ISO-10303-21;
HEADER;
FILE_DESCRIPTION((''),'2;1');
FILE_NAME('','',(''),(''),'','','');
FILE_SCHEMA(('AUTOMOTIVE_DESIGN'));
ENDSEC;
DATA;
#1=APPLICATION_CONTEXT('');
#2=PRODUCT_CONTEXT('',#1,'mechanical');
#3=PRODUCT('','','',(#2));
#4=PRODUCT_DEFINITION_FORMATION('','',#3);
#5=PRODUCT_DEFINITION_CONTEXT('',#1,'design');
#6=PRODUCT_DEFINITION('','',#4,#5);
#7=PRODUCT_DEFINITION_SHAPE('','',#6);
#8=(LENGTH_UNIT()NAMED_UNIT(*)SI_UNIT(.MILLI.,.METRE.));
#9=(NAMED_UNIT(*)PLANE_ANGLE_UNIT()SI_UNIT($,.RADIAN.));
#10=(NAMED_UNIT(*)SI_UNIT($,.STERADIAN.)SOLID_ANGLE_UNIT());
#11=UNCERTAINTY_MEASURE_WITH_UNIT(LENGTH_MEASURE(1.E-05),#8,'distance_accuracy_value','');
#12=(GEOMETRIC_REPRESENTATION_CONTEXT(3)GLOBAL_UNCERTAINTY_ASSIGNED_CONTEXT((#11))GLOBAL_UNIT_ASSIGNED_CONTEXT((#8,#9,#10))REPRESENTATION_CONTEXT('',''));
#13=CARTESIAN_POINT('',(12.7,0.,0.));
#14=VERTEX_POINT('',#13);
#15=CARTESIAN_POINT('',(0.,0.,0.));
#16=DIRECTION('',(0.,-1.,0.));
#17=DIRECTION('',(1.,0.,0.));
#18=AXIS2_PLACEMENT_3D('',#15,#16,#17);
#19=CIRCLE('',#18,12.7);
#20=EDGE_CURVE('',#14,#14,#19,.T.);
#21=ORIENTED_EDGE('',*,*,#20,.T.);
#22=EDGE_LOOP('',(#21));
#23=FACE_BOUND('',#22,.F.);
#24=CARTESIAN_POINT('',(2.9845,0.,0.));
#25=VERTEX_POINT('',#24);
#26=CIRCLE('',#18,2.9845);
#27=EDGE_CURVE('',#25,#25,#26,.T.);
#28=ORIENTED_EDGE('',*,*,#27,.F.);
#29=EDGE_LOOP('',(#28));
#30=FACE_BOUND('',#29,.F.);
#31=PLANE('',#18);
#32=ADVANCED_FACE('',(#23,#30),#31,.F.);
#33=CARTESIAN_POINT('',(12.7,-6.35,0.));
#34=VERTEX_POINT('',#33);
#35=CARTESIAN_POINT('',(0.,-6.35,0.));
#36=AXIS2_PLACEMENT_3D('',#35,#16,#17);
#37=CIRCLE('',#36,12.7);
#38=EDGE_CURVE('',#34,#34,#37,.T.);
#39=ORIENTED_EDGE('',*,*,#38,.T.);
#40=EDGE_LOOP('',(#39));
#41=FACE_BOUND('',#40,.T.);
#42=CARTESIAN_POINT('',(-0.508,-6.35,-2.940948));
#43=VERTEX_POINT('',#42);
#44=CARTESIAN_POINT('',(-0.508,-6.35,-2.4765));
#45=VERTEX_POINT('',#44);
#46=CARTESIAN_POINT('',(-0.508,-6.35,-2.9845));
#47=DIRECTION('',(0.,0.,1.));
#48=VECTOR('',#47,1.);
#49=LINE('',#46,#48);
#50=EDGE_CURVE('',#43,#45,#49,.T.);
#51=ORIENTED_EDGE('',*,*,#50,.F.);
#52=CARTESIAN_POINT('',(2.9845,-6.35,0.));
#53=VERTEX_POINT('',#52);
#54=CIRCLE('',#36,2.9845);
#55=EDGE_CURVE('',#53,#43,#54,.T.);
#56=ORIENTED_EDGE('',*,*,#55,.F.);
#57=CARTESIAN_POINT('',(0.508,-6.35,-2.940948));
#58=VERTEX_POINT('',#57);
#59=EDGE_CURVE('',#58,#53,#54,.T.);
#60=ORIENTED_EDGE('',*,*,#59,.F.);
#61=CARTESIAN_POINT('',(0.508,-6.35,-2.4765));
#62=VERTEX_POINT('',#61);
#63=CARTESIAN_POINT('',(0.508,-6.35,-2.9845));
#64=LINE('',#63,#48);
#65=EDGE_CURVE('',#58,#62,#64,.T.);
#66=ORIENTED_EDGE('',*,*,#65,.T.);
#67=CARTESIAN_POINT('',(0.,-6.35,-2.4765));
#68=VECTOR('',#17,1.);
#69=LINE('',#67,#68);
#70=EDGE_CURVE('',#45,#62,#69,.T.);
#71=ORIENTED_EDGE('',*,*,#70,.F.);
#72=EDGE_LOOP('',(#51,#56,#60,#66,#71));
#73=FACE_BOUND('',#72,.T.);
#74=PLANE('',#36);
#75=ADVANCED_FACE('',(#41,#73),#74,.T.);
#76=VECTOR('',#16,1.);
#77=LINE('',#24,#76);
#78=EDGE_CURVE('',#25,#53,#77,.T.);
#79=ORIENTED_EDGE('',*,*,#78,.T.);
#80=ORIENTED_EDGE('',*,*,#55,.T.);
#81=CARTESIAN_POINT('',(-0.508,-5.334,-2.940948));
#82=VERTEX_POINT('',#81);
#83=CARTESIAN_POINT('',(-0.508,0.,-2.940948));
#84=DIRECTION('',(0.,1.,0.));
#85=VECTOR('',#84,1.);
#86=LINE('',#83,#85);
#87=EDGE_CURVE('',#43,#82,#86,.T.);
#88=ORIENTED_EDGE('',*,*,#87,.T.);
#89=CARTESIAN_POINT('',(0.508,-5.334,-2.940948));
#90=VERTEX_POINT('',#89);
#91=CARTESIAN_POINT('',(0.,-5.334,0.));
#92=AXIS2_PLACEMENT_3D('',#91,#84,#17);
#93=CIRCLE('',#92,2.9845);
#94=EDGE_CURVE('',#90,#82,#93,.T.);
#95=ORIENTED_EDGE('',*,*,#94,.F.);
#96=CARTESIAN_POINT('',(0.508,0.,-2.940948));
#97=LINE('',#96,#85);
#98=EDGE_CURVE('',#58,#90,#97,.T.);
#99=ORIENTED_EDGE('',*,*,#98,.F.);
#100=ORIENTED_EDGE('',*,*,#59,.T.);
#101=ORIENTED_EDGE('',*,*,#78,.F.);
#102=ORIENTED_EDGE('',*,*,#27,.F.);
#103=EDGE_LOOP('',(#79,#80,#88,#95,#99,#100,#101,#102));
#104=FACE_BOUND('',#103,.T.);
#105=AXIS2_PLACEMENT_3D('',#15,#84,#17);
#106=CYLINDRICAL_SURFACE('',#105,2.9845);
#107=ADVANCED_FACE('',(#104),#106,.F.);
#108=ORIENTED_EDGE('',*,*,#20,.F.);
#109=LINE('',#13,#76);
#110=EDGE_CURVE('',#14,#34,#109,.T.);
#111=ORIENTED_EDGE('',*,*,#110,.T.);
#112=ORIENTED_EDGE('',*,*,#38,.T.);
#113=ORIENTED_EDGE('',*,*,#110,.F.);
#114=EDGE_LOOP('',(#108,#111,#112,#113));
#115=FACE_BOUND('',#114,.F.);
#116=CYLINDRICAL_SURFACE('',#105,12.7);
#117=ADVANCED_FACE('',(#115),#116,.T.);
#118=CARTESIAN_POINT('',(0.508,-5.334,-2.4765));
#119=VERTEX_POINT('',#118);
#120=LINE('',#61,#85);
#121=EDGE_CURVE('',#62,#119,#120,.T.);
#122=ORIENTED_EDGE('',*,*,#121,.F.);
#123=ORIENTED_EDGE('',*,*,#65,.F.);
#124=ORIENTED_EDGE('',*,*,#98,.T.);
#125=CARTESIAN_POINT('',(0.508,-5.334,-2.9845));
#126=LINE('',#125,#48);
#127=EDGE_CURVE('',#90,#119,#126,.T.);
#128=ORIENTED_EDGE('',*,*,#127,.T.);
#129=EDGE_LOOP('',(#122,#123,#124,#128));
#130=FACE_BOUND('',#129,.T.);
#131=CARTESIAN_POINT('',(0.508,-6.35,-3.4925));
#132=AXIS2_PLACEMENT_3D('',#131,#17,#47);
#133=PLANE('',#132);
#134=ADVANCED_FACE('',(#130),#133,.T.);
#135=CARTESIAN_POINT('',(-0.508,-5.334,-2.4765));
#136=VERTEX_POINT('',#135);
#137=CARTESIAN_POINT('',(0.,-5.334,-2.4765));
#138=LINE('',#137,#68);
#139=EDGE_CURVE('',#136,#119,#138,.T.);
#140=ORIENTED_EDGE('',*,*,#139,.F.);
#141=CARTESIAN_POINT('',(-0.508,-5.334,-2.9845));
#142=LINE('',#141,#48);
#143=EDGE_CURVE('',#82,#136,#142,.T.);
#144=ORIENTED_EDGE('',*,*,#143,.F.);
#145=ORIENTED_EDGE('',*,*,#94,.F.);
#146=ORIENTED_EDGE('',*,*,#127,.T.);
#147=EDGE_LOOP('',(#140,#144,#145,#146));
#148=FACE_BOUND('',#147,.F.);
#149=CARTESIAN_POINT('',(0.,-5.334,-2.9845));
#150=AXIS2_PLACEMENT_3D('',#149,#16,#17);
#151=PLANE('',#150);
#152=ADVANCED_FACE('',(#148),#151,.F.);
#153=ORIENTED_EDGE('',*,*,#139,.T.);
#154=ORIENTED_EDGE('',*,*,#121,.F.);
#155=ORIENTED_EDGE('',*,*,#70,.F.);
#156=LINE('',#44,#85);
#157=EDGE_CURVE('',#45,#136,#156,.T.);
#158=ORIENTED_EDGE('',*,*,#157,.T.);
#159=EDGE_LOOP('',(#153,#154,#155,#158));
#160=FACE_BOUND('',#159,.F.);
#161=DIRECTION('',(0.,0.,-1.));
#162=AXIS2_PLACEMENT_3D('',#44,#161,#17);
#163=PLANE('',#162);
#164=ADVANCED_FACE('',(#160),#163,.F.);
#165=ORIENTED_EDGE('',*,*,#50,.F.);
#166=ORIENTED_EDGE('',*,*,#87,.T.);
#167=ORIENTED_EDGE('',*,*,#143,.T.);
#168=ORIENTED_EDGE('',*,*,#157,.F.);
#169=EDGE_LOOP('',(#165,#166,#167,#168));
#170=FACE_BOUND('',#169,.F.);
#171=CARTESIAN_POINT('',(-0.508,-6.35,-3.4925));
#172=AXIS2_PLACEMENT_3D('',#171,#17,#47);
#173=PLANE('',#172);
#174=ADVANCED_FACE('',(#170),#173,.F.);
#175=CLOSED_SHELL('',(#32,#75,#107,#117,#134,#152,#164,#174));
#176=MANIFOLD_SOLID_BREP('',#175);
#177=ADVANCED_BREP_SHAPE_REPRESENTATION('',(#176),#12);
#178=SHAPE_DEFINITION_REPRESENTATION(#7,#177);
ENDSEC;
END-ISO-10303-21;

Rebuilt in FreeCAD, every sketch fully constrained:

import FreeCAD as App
import Part
import Sketcher
Q = App.Units.Quantity

doc = App.newDocument("Part")
body = doc.addObject("PartDesign::Body", "Body")

sketch1 = body.newObject("Sketcher::SketchObject", "Sketch")
sketch1.AttachmentSupport = (doc.getObject("XZ_Plane"), [""])
sketch1.MapMode = "FlatFace"
sketch1.addGeometry(Part.Circle(App.Vector(0, 0, 0), App.Vector(0, 0, 1), 12.7), False)
sketch1.addGeometry(Part.Circle(App.Vector(0, 0, 0), App.Vector(0, 0, 1), 3), False)
sketch1.addConstraint(Sketcher.Constraint("Coincident", 0, 3, -1, 1))
sketch1.addConstraint(Sketcher.Constraint("Coincident", 1, 3, -1, 1))
sketch1.addConstraint(Sketcher.Constraint("Diameter", 0, Q("1 in")))
sketch1.addConstraint(Sketcher.Constraint("Diameter", 1, Q("0.235 in")))
pad1 = body.newObject("PartDesign::Pad", "Pad")
pad1.Profile = sketch1
pad1.Length = Q("0.25 in")

sketch2 = body.newObject("Sketcher::SketchObject", "Sketch001")
sketch2.AttachmentSupport = (doc.getObject("XZ_Plane"), [""])
sketch2.MapMode = "FlatFace"
sketch2.AttachmentOffset = App.Placement(App.Vector(0, 0, 0.25 * 25.4), App.Rotation())
sketch2.addGeometry(Part.LineSegment(App.Vector(-0.5, -2.5, 0), App.Vector(-0.5, -3.5, 0)), False)
sketch2.addGeometry(Part.LineSegment(App.Vector(-0.5, -3.5, 0), App.Vector(0.5, -3.5, 0)), False)
sketch2.addGeometry(Part.LineSegment(App.Vector(0.5, -3.5, 0), App.Vector(0.5, -2.5, 0)), False)
sketch2.addGeometry(Part.LineSegment(App.Vector(0.5, -2.5, 0), App.Vector(-0.5, -2.5, 0)), False)
sketch2.addConstraint(Sketcher.Constraint("Coincident", 0, 2, 1, 1))
sketch2.addConstraint(Sketcher.Constraint("Coincident", 1, 2, 2, 1))
sketch2.addConstraint(Sketcher.Constraint("Coincident", 2, 2, 3, 1))
sketch2.addConstraint(Sketcher.Constraint("Coincident", 3, 2, 0, 1))
sketch2.addConstraint(Sketcher.Constraint("Vertical", 0))
sketch2.addConstraint(Sketcher.Constraint("Horizontal", 1))
sketch2.addConstraint(Sketcher.Constraint("Vertical", 2))
sketch2.addConstraint(Sketcher.Constraint("Horizontal", 3))
sketch2.addConstraint(Sketcher.Constraint("Equal", 3, 0))
sketch2.addConstraint(Sketcher.Constraint("DistanceX", 1, 1, 1, 2, Q("0.04 in")))
sketch2.addConstraint(Sketcher.Constraint("DistanceX", 0, 2, -1, 1, Q("0.02 in")))
sketch2.addConstraint(Sketcher.Constraint("DistanceY", 0, 2, -1, 1, Q("0.1375 in")))
pad2 = body.newObject("PartDesign::Pad", "Pad001")
pad2.Profile = sketch2
pad2.Length = Q("0.04 in")
pad2.Reversed = True

doc.recompute()
